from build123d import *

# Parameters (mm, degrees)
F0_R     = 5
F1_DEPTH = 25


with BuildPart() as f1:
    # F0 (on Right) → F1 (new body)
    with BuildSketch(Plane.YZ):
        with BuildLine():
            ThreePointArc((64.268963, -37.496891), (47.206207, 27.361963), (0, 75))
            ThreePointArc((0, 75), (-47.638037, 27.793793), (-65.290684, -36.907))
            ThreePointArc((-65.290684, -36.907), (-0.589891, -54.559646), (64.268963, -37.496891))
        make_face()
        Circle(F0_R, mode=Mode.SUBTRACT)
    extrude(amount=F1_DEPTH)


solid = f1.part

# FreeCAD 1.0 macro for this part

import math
import FreeCAD as App
import Part
import Sketcher
from FreeCAD import Vector
Q = App.Units.Quantity

doc = App.newDocument("Part")
body = doc.addObject("PartDesign::Body", "Body")

# Sketch on YZ plane
sketch1 = body.newObject("Sketcher::SketchObject", "Sketch")
sketch1.AttachmentSupport = (doc.getObject("YZ_Plane"), [""])
sketch1.MapMode = "FlatFace"
sketch1.addGeometry(Part.ArcOfCircle(Part.Circle(Vector(-65, -37, 0), Vector(0, 0, 1), 130), math.radians(0), math.radians(60)), False)
sketch1.addGeometry(Part.ArcOfCircle(Part.Circle(Vector(64, -37, 0), Vector(0, 0, 1), 130), math.radians(120), math.radians(180)), False)
sketch1.addGeometry(Part.ArcOfCircle(Part.Circle(Vector(0, 75, 0), Vector(0, 0, 1), 130), math.radians(-120), math.radians(-60)), False)
sketch1.addGeometry(Part.Circle(Vector(0, 0, 0), Vector(0, 0, 1), 5), False)
sketch1.addConstraint(Sketcher.Constraint("Coincident", 0, 2, 1, 1))
sketch1.addConstraint(Sketcher.Constraint("Coincident", 1, 2, 2, 1))
sketch1.addConstraint(Sketcher.Constraint("Coincident", 2, 2, 0, 1))
sketch1.addConstraint(Sketcher.Constraint("Coincident", 3, 3, -1, 1))
sketch1.addConstraint(Sketcher.Constraint("Coincident", 0, 2, 2, 3))
sketch1.addConstraint(Sketcher.Constraint("Coincident", 1, 2, 0, 3))
sketch1.addConstraint(Sketcher.Constraint("Equal", 0, 1))
sketch1.addConstraint(Sketcher.Constraint("PointOnObject", 2, 3, -2))
sketch1.addConstraint(Sketcher.Constraint("Diameter", 3, Q("10 mm")))
sketch1.addConstraint(Sketcher.Constraint("DistanceY", -1, 1, 0, 2, Q("75 mm")))
sketch1.addConstraint(Sketcher.Constraint("Radius", 0, Q("129.56099 mm")))
sketch1.addConstraint(Sketcher.Constraint("DistanceY", 0, 3, -1, 1, Q("36.907 mm")))
pad1 = body.newObject("PartDesign::Pad", "Pad")
pad1.Profile = sketch1
pad1.Length = 25

doc.recompute()
